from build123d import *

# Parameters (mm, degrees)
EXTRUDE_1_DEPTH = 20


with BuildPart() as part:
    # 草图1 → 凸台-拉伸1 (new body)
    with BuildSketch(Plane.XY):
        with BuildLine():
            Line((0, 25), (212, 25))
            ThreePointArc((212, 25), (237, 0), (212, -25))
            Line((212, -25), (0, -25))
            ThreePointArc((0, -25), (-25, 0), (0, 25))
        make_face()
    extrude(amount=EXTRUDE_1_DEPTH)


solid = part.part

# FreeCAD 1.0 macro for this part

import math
import FreeCAD as App
import Part
import Sketcher
from FreeCAD import Vector

doc = App.newDocument("Part")
body = doc.addObject("PartDesign::Body", "Body")

# Sketch on XY plane
sketch1 = body.newObject("Sketcher::SketchObject", "Sketch")
sketch1.AttachmentSupport = (doc.getObject("XY_Plane"), [""])
sketch1.MapMode = "FlatFace"
sketch1.addGeometry([
    Part.LineSegment(Vector(212, 25, 0), Vector(0, 25, 0)),
    Part.ArcOfCircle(Part.Circle(Vector(0, 0, 0), Vector(0, 0, 1), 25), math.radians(90), math.radians(270)),
    Part.LineSegment(Vector(0, -25, 0), Vector(212, -25, 0)),
    Part.ArcOfCircle(Part.Circle(Vector(212, 0, 0), Vector(0, 0, 1), 25), math.radians(-90), math.radians(90)),
], False)
sketch1.addConstraint([
    Sketcher.Constraint("Tangent", 0, 2, 1, 1),
    Sketcher.Constraint("Tangent", 1, 2, 2, 1),
    Sketcher.Constraint("Tangent", 2, 2, 3, 1),
    Sketcher.Constraint("Tangent", 3, 2, 0, 1),
    Sketcher.Constraint("Horizontal", 0),
    Sketcher.Constraint("Horizontal", 2),
    Sketcher.Constraint("Coincident", 1, 3, -1, 1),
    Sketcher.Constraint("Radius", 1, 25.0),
    Sketcher.Constraint("DistanceX", 0, 2, 0, 1, 212.0),
])
pad1 = body.newObject("PartDesign::Pad", "Pad")
pad1.Profile = sketch1
pad1.Length = 20

doc.recompute()
